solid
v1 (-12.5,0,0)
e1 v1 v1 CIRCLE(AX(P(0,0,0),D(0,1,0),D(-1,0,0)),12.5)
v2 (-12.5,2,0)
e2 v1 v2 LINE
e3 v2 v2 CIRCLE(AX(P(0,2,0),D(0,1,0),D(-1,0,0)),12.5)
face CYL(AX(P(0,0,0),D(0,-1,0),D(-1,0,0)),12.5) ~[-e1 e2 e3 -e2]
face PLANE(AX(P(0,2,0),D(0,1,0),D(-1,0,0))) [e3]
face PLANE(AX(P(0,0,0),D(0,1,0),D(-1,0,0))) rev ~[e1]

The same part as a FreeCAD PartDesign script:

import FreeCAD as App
import Part
import Sketcher
from FreeCAD import Vector
Q = App.Units.Quantity

doc = App.newDocument("Part")
body = doc.addObject("PartDesign::Body", "Body")

sketch1 = doc.addObject("Sketcher::SketchObject", "Sketch")
body.addObject(sketch1)
sketch1.AttachmentSupport = (doc.XZ_Plane, [""])
sketch1.MapMode = "FlatFace"
sketch1.addGeometry(Part.Circle(Vector(0, 0, 0), Vector(0, 0, 1), 12), False)
sketch1.addConstraint([
    Sketcher.Constraint("Coincident", 0, 3, -1, 1),
    Sketcher.Constraint("Diameter", 0, Q("25 mm")),
])
pad1 = doc.addObject("PartDesign::Pad", "Pad")
body.addObject(pad1)
pad1.Profile = sketch1
pad1.Length = 2
pad1.Reversed = True

doc.recompute()
